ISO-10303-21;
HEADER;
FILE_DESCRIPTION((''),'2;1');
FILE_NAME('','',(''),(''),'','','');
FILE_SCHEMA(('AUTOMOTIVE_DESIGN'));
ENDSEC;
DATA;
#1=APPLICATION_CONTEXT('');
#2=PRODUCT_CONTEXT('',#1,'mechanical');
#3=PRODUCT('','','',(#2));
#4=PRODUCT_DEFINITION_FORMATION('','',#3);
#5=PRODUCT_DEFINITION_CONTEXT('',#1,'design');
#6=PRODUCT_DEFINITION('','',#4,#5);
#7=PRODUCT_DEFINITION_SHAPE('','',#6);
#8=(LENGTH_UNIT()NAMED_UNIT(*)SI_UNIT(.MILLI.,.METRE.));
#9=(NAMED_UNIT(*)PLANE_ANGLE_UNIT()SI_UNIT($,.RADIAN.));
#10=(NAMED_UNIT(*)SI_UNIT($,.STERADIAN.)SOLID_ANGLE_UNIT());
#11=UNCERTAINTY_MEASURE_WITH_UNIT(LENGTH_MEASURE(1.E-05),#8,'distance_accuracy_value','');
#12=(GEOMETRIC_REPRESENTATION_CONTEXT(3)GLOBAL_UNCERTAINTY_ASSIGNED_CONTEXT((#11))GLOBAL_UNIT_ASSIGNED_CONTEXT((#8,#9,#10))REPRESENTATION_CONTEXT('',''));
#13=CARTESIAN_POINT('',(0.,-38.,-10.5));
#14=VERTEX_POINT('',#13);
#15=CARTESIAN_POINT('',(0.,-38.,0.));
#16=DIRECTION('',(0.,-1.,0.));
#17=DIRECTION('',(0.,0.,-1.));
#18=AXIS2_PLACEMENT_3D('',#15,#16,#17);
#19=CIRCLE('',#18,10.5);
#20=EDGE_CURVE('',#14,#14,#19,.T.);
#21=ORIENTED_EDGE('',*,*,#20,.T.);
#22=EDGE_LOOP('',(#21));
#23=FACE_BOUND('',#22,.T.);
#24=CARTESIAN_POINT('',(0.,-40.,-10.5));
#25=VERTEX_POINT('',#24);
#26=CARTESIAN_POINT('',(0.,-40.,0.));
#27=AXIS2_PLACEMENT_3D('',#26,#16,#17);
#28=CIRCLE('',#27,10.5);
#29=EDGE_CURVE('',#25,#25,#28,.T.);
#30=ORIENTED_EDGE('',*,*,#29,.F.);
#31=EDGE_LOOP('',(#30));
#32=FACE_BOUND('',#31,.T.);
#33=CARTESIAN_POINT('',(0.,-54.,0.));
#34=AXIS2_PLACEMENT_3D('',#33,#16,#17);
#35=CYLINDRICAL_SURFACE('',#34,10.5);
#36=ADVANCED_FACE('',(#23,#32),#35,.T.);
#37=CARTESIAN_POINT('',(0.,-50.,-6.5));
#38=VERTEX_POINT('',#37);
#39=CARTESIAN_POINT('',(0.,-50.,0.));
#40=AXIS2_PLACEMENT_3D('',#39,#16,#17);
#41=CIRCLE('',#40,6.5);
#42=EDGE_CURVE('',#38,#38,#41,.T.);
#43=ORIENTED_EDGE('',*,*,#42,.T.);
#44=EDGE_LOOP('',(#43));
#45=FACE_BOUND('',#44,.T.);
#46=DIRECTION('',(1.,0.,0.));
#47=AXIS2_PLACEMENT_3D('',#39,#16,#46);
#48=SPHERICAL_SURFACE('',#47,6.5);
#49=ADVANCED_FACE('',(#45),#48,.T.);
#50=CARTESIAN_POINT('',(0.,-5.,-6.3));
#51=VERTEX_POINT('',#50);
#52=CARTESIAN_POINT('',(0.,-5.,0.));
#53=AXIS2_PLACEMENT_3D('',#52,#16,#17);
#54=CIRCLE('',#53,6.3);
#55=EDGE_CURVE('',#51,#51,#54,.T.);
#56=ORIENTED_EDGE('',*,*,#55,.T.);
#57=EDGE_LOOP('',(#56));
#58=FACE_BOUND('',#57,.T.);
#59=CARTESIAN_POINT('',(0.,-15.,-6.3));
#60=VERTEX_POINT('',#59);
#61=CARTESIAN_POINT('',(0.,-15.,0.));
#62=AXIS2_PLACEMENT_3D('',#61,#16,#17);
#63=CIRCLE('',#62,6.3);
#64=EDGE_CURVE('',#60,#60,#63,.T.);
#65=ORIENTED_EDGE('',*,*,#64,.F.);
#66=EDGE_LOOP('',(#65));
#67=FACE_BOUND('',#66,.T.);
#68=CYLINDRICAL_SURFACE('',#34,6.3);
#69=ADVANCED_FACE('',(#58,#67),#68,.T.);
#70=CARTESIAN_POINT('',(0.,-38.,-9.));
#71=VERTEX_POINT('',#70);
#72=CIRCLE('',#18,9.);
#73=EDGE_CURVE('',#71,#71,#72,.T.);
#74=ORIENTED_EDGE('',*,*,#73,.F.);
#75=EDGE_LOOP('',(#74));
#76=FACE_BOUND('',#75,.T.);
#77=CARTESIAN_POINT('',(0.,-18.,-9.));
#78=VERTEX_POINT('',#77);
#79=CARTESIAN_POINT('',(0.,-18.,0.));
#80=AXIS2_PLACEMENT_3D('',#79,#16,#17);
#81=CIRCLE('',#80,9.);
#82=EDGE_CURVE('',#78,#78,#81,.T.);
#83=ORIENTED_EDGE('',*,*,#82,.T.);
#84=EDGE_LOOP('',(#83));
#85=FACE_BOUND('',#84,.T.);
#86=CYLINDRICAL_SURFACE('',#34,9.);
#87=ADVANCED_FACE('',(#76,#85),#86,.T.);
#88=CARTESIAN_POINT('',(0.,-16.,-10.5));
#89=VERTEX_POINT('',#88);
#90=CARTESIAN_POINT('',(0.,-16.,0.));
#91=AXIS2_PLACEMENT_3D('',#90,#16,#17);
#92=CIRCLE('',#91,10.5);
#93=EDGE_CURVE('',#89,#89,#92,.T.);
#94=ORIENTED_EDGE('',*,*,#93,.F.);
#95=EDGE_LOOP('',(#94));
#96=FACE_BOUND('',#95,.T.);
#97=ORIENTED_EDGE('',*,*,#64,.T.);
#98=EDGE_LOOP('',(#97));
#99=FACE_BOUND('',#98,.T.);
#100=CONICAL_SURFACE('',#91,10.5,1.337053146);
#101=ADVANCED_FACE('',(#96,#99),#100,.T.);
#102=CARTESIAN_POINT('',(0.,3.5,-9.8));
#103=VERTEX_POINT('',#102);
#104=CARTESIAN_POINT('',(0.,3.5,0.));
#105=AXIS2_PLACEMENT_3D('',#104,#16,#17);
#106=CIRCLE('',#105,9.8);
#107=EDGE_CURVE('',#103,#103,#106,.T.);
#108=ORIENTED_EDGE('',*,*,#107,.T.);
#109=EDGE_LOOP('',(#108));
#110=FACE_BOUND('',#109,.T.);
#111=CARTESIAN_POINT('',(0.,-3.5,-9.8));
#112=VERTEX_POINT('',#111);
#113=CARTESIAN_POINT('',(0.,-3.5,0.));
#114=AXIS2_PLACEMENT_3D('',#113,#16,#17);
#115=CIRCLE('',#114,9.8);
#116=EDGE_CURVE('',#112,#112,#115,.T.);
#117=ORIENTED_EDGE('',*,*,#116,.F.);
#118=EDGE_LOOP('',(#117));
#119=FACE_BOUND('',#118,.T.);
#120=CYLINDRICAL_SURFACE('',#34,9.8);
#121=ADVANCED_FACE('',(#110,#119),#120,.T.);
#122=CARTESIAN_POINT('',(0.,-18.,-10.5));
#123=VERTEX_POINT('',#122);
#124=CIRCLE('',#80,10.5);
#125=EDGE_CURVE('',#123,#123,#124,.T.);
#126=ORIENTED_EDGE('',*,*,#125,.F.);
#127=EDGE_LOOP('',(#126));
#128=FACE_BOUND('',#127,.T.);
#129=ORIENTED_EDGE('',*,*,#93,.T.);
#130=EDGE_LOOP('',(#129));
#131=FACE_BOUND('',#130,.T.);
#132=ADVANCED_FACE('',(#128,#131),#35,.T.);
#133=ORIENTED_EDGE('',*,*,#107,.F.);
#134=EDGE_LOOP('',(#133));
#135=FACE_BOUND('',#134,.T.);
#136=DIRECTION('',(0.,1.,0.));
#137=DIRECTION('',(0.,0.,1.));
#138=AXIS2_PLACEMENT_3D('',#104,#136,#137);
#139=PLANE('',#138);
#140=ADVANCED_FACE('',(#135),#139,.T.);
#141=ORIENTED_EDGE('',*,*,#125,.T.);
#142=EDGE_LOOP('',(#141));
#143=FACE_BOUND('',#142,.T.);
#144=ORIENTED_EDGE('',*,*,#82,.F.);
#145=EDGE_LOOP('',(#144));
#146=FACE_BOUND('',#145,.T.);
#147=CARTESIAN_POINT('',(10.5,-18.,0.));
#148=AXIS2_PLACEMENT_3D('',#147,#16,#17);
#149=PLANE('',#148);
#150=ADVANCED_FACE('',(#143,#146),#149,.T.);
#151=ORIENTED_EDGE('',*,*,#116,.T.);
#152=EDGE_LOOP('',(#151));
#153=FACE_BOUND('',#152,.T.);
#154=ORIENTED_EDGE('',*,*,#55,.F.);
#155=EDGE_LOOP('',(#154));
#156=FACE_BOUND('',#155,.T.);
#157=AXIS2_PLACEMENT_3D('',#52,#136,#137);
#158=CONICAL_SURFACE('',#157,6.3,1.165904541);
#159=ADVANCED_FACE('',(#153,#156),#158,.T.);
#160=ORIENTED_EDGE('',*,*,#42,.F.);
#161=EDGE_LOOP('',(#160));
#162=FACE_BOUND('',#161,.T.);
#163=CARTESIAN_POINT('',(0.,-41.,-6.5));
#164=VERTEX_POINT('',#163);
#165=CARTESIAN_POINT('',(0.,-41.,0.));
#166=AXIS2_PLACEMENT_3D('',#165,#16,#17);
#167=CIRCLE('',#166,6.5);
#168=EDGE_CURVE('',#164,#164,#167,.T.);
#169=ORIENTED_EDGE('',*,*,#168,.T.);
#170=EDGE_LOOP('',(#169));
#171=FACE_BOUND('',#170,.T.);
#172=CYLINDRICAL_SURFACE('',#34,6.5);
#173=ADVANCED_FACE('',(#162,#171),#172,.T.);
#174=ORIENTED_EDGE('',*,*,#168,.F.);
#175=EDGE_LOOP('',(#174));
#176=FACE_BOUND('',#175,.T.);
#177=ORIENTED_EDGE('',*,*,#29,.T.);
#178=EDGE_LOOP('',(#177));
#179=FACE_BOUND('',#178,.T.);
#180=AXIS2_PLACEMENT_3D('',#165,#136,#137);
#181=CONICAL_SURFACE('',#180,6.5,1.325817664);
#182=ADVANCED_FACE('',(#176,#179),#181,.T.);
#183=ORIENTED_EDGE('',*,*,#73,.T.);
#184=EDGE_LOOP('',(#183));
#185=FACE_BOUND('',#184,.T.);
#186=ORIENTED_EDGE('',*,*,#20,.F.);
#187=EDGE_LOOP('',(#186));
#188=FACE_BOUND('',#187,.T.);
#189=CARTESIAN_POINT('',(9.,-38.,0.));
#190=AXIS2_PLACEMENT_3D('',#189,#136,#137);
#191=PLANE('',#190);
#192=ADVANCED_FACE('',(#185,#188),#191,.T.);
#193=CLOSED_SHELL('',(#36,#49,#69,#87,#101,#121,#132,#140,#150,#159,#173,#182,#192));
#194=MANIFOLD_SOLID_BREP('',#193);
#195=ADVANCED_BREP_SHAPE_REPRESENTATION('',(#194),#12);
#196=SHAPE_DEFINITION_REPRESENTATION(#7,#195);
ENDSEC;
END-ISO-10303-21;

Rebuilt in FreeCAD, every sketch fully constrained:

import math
import FreeCAD as App
import Part
import Sketcher

V = App.Vector
Q = App.Units.Quantity

doc = App.newDocument("Part")
body = doc.addObject("PartDesign::Body", "Body")

# Sketch on XY plane
sketch1 = doc.addObject("Sketcher::SketchObject", "Sketch")
body.addObject(sketch1)
sketch1.AttachmentSupport = (doc.XY_Plane, [""])
sketch1.MapMode = "FlatFace"
sketch1.addGeometry([
    Part.LineSegment(V(9.8, 3.5, 0), V(0, 3.5, 0)),  # 0
    Part.LineSegment(V(0, 3.5, 0), V(0, -50, 0)),  # 1
    Part.LineSegment(V(0, -50, 0), V(6.5, -50, 0)),  # 2
    Part.LineSegment(V(6.5, -50, 0), V(6.5, -41, 0)),  # 3
    Part.LineSegment(V(6.5, -41, 0), V(10.5, -40, 0)),  # 4
    Part.LineSegment(V(10.5, -40, 0), V(10.5, -38, 0)),  # 5
    Part.LineSegment(V(10.5, -38, 0), V(9, -38, 0)),  # 6
    Part.LineSegment(V(9, -38, 0), V(9, -18, 0)),  # 7
    Part.LineSegment(V(9, -18, 0), V(10.5, -18, 0)),  # 8
    Part.LineSegment(V(10.5, -18, 0), V(10.5, -16, 0)),  # 9
    Part.LineSegment(V(10.5, -16, 0), V(6.3, -15, 0)),  # 10
    Part.LineSegment(V(6.3, -15, 0), V(6.3, -5, 0)),  # 11
    Part.LineSegment(V(6.3, -5, 0), V(9.8, -3.5, 0)),  # 12
    Part.LineSegment(V(9.8, -3.5, 0), V(9.8, 3.5, 0)),  # 13
], False)
sketch1.addConstraint([
    Sketcher.Constraint("Coincident", 0, 2, 1, 1),
    Sketcher.Constraint("Coincident", 1, 2, 2, 1),
    Sketcher.Constraint("Coincident", 2, 2, 3, 1),
    Sketcher.Constraint("Coincident", 3, 2, 4, 1),
    Sketcher.Constraint("Coincident", 4, 2, 5, 1),
    Sketcher.Constraint("Coincident", 5, 2, 6, 1),
    Sketcher.Constraint("Coincident", 6, 2, 7, 1),
    Sketcher.Constraint("Coincident", 7, 2, 8, 1),
    Sketcher.Constraint("Coincident", 8, 2, 9, 1),
    Sketcher.Constraint("Coincident", 9, 2, 10, 1),
    Sketcher.Constraint("Coincident", 10, 2, 11, 1),
    Sketcher.Constraint("Coincident", 11, 2, 12, 1),
    Sketcher.Constraint("Coincident", 12, 2, 13, 1),
    Sketcher.Constraint("Coincident", 13, 2, 0, 1),
    Sketcher.Constraint("Horizontal", 0),
    Sketcher.Constraint("Vertical", 1),
    Sketcher.Constraint("Horizontal", 2),
    Sketcher.Constraint("Vertical", 3),
    Sketcher.Constraint("Vertical", 5),
    Sketcher.Constraint("Horizontal", 6),
    Sketcher.Constraint("Vertical", 7),
    Sketcher.Constraint("Horizontal", 8),
    Sketcher.Constraint("Vertical", 9),
    Sketcher.Constraint("Vertical", 11),
    Sketcher.Constraint("Vertical", 13),
    Sketcher.Constraint("PointOnObject", 0, 2, -2),
    Sketcher.Constraint("Vertical", 5, 2, 8, 2),
    Sketcher.Constraint("Equal", 5, 9),
    Sketcher.Constraint("DistanceY", 3, 1, 3, 2, Q("9 mm")),
    Sketcher.Constraint("DistanceY", 5, 1, 5, 2, Q("2 mm")),
    Sketcher.Constraint("DistanceY", 7, 1, 7, 2, Q("20 mm")),
    Sketcher.Constraint("DistanceY", 11, 1, 11, 2, Q("10 mm")),
    Sketcher.Constraint("DistanceY", 13, 1, 13, 2, Q("7 mm")),
    Sketcher.Constraint("DistanceX", 0, 2, 0, 1, Q("9.8 mm")),
    Sketcher.Constraint("DistanceX", 2, 1, 2, 2, Q("6.5 mm")),
    Sketcher.Constraint("DistanceX", 6, 2, 6, 1, Q("1.5 mm")),
    Sketcher.Constraint("DistanceY", 1, 2, 1, 1, Q("53.5 mm")),
    Sketcher.Constraint("DistanceY", 1, 2, -1, 1, Q("50 mm")),
    Sketcher.Constraint("DistanceY", 4, 2, -1, 1, Q("40 mm")),
    Sketcher.Constraint("DistanceX", -1, 1, 6, 2, Q("9 mm")),
    Sketcher.Constraint("DistanceY", 10, 2, -1, 1, Q("15 mm")),
    Sketcher.Constraint("DistanceX", -1, 1, 10, 2, Q("6.3 mm")),
])
revolution = doc.addObject("PartDesign::Revolution", "Revolution")
body.addObject(revolution)
revolution.Profile = sketch1
revolution.ReferenceAxis = (sketch1, ["V_Axis"])
revolution.Angle = 360

# Sketch on XY plane
sketch2 = doc.addObject("Sketcher::SketchObject", "Sketch001")
body.addObject(sketch2)
sketch2.AttachmentSupport = (doc.XY_Plane, [""])
sketch2.MapMode = "FlatFace"
sketch2.addGeometry([
    Part.LineSegment(V(0, -43.5, 0), V(0, -56.5, 0)),
    Part.ArcOfCircle(Part.Circle(V(0, -50, 0), V(0, 0, 1), 6.5), math.radians(-90), math.radians(90)),
], False)
sketch2.addConstraint([
    Sketcher.Constraint("Coincident", 0, 1, 1, 2),
    Sketcher.Constraint("Coincident", 1, 1, 0, 2),
    Sketcher.Constraint("Vertical", 0),
    Sketcher.Constraint("PointOnObject", 1, 3, -2),
    Sketcher.Constraint("PointOnObject", 0, 1, -2),
    Sketcher.Constraint("Radius", 1, Q("6.5 mm")),
    Sketcher.Constraint("DistanceY", 1, 3, -1, 1, Q("50 mm")),
])
revolution2 = doc.addObject("PartDesign::Revolution", "Revolution001")
body.addObject(revolution2)
revolution2.Profile = sketch2
revolution2.ReferenceAxis = (sketch2, ["V_Axis"])
revolution2.Angle = 360

doc.recompute()
